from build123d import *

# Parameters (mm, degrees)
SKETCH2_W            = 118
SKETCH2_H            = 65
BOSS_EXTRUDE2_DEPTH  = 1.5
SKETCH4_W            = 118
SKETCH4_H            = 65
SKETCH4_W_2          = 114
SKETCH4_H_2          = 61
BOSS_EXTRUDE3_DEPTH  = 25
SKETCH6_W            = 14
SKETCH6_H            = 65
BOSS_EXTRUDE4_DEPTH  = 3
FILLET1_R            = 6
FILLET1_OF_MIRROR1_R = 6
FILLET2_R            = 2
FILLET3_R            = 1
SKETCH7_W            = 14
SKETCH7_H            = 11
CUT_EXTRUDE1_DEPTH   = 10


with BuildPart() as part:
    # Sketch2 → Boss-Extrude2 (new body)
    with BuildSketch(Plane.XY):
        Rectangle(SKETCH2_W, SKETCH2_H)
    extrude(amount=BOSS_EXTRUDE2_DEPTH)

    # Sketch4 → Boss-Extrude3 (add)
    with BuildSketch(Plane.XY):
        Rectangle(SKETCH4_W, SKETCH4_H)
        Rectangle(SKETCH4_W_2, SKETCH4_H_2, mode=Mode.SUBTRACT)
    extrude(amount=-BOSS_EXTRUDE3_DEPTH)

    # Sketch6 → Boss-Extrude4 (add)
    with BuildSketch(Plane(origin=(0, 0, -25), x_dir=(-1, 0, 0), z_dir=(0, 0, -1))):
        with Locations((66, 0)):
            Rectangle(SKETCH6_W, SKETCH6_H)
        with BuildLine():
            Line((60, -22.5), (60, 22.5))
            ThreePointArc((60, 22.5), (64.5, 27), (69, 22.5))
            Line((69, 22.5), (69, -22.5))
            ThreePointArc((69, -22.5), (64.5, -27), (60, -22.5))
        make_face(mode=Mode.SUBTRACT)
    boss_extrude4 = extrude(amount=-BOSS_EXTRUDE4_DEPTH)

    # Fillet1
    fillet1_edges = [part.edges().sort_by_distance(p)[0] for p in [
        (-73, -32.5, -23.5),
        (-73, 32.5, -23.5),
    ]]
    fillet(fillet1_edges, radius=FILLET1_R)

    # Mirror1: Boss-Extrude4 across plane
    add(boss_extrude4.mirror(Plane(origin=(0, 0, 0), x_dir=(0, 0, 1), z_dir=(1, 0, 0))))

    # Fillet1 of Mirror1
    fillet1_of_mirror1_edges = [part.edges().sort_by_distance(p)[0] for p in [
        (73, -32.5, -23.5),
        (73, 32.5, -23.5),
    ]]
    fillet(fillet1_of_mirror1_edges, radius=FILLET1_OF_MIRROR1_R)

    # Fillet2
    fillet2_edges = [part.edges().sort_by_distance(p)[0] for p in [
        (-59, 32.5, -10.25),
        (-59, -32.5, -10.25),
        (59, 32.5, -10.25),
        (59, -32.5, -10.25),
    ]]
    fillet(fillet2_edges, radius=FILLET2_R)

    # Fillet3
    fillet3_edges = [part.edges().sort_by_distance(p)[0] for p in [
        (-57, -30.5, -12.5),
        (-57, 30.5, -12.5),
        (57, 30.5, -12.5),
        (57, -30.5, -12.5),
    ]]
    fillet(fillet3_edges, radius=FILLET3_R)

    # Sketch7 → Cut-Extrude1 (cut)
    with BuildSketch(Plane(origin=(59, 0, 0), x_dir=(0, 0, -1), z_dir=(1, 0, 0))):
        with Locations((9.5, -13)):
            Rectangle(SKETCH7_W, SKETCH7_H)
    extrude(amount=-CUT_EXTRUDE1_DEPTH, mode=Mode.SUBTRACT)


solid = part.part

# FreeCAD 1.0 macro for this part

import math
import FreeCAD as App
import Part
import Sketcher
from FreeCAD import Vector


def edges_at(feature, points):
    """Names of the edges that pass closest to the given points."""
    edges = feature.Shape.Edges
    near = lambda p: min(range(len(edges)), key=lambda i: edges[i].distToShape(Part.Vertex(*p))[0])
    return sorted({f"Edge{near(p) + 1}" for p in points})

doc = App.newDocument("Part")
body = doc.addObject("PartDesign::Body", "Body")

# Sketch on XY plane
sketch1 = doc.addObject("Sketcher::SketchObject", "Sketch")
body.addObject(sketch1)
sketch1.AttachmentSupport = (doc.XY_Plane, [""])
sketch1.MapMode = "FlatFace"
sketch1.addGeometry([
    Part.LineSegment(Vector(-59, 32, 0), Vector(-59, -32, 0)),
    Part.LineSegment(Vector(-59, -32, 0), Vector(59, -32, 0)),
    Part.LineSegment(Vector(59, -32, 0), Vector(59, 32, 0)),
    Part.LineSegment(Vector(59, 32, 0), Vector(-59, 32, 0)),
], False)
sketch1.addConstraint([
    Sketcher.Constraint("Coincident", 0, 2, 1, 1),
    Sketcher.Constraint("Coincident", 1, 2, 2, 1),
    Sketcher.Constraint("Coincident", 2, 2, 3, 1),
    Sketcher.Constraint("Coincident", 3, 2, 0, 1),
    Sketcher.Constraint("Vertical", 0),
    Sketcher.Constraint("Horizontal", 1),
    Sketcher.Constraint("Vertical", 2),
    Sketcher.Constraint("Horizontal", 3),
    Sketcher.Constraint("Symmetric", 0, 2, 2, 2, -1, 1),
    Sketcher.Constraint("DistanceX", 1, 1, 1, 2, 118.0),
    Sketcher.Constraint("DistanceY", 0, 2, 0, 1, 65.0),
])
pad1 = doc.addObject("PartDesign::Pad", "Pad")
body.addObject(pad1)
pad1.Profile = sketch1
pad1.Length = 1.5

# Sketch on XY plane
sketch2 = doc.addObject("Sketcher::SketchObject", "Sketch001")
body.addObject(sketch2)
sketch2.AttachmentSupport = (doc.XY_Plane, [""])
sketch2.MapMode = "FlatFace"
sketch2.addGeometry([
    Part.LineSegment(Vector(-59, 32, 0), Vector(-59, -32, 0)),  # 0
    Part.LineSegment(Vector(-59, -32, 0), Vector(59, -32, 0)),  # 1
    Part.LineSegment(Vector(59, -32, 0), Vector(59, 32, 0)),  # 2
    Part.LineSegment(Vector(59, 32, 0), Vector(-59, 32, 0)),  # 3
    Part.LineSegment(Vector(57, -30, 0), Vector(-57, -30, 0)),  # 4
    Part.LineSegment(Vector(-57, -30, 0), Vector(-57, 30, 0)),  # 5
    Part.LineSegment(Vector(-57, 30, 0), Vector(57, 30, 0)),  # 6
    Part.LineSegment(Vector(57, 30, 0), Vector(57, -30, 0)),  # 7
], False)
sketch2.addConstraint([
    Sketcher.Constraint("Coincident", 0, 2, 1, 1),
    Sketcher.Constraint("Coincident", 1, 2, 2, 1),
    Sketcher.Constraint("Coincident", 2, 2, 3, 1),
    Sketcher.Constraint("Coincident", 3, 2, 0, 1),
    Sketcher.Constraint("Coincident", 4, 2, 5, 1),
    Sketcher.Constraint("Coincident", 5, 2, 6, 1),
    Sketcher.Constraint("Coincident", 6, 2, 7, 1),
    Sketcher.Constraint("Coincident", 7, 2, 4, 1),
    Sketcher.Constraint("Vertical", 0),
    Sketcher.Constraint("Horizontal", 1),
    Sketcher.Constraint("Vertical", 2),
    Sketcher.Constraint("Horizontal", 3),
    Sketcher.Constraint("Horizontal", 4),
    Sketcher.Constraint("Vertical", 5),
    Sketcher.Constraint("Horizontal", 6),
    Sketcher.Constraint("Vertical", 7),
    Sketcher.Constraint("Symmetric", 0, 2, 2, 2, -1, 1),
    Sketcher.Constraint("Symmetric", 4, 2, 6, 2, -1, 1),
    Sketcher.Constraint("DistanceX", 1, 1, 1, 2, 118.0),
    Sketcher.Constraint("DistanceX", 4, 2, 4, 1, 114.0),
    Sketcher.Constraint("DistanceY", 0, 2, 0, 1, 65.0),
    Sketcher.Constraint("DistanceY", 5, 1, 5, 2, 61.0),
])
pad2 = doc.addObject("PartDesign::Pad", "Pad001")
body.addObject(pad2)
pad2.Profile = sketch2
pad2.Length = 25
pad2.Reversed = True

# Sketch on XY plane
sketch3 = doc.addObject("Sketcher::SketchObject", "Sketch002")
body.addObject(sketch3)
sketch3.AttachmentSupport = (doc.XY_Plane, [""])
sketch3.MapMode = "FlatFace"
sketch3.AttachmentOffset = App.Placement(Vector(0, 0, -25), App.Rotation())
sketch3.addGeometry([
    Part.LineSegment(Vector(-59, 32.5, 0), Vector(-59, -32.5, 0)),  # 0
    Part.LineSegment(Vector(-59, -32.5, 0), Vector(-73, -32.5, 0)),  # 1
    Part.LineSegment(Vector(-73, -32.5, 0), Vector(-73, 32.5, 0)),  # 2
    Part.LineSegment(Vector(-73, 32.5, 0), Vector(-59, 32.5, 0)),  # 3
    Part.ArcOfCircle(Part.Circle(Vector(-64.5, -22.5, 0), Vector(0, 0, 1), 4.5), math.radians(180), math.radians(360)),  # 4
    Part.LineSegment(Vector(-60, -22.5, 0), Vector(-60, 22.5, 0)),  # 5
    Part.ArcOfCircle(Part.Circle(Vector(-64.5, 22.5, 0), Vector(0, 0, 1), 4.5), math.radians(0), math.radians(180)),  # 6
    Part.LineSegment(Vector(-69, 22.5, 0), Vector(-69, -22.5, 0)),  # 7
], False)
sketch3.addConstraint([
    Sketcher.Constraint("Coincident", 0, 2, 1, 1),
    Sketcher.Constraint("Coincident", 1, 2, 2, 1),
    Sketcher.Constraint("Coincident", 2, 2, 3, 1),
    Sketcher.Constraint("Coincident", 3, 2, 0, 1),
    Sketcher.Constraint("Tangent", 4, 2, 5, 1),
    Sketcher.Constraint("Tangent", 5, 2, 6, 1),
    Sketcher.Constraint("Tangent", 6, 2, 7, 1),
    Sketcher.Constraint("Tangent", 7, 2, 4, 1),
    Sketcher.Constraint("Vertical", 0),
    Sketcher.Constraint("Horizontal", 1),
    Sketcher.Constraint("Vertical", 2),
    Sketcher.Constraint("Horizontal", 3),
    Sketcher.Constraint("Vertical", 5),
    Sketcher.Constraint("Vertical", 7),
    Sketcher.Constraint("Radius", 4, 4.5),
    Sketcher.Constraint("DistanceX", 1, 2, 1, 1, 14.0),
    Sketcher.Constraint("DistanceY", 0, 2, 0, 1, 65.0),
    Sketcher.Constraint("DistanceY", 5, 1, 5, 2, 45.0),
    Sketcher.Constraint("DistanceX", 0, 2, -1, 1, 59.0),
    Sketcher.Constraint("DistanceX", 4, 2, -1, 1, 60.0),
    Sketcher.Constraint("DistanceY", 0, 2, 4, 3, 10.0),
    Sketcher.Constraint("DistanceY", 4, 3, -1, 1, 22.5),
])
pad3 = doc.addObject("PartDesign::Pad", "Pad002")
body.addObject(pad3)
pad3.Profile = sketch3
pad3.Length = 3
doc.recompute()

fillet = doc.addObject("PartDesign::Fillet", "Fillet")
body.addObject(fillet)
fillet.Base = (pad3, edges_at(pad3, [(-73, -32.5, -23.5), (-73, 32.5, -23.5)]))
fillet.Radius = 6
doc.recompute()

mirrored = doc.addObject("PartDesign::Mirrored", "Mirrored")
body.addObject(mirrored)
mirrored.Originals = [pad3]
mirrored.MirrorPlane = (doc.YZ_Plane, [""])
body.Tip = mirrored
doc.recompute()

fillet2 = doc.addObject("PartDesign::Fillet", "Fillet001")
body.addObject(fillet2)
fillet2.Base = (mirrored, edges_at(mirrored, [(73, -32.5, -23.5), (73, 32.5, -23.5)]))
fillet2.Radius = 6
doc.recompute()

fillet3 = doc.addObject("PartDesign::Fillet", "Fillet002")
body.addObject(fillet3)
fillet3.Base = (fillet2, edges_at(fillet2, [
    (-59, 32.5, -10.25),
    (-59, -32.5, -10.25),
    (59, 32.5, -10.25),
    (59, -32.5, -10.25),
]))
fillet3.Radius = 2
doc.recompute()

fillet4 = doc.addObject("PartDesign::Fillet", "Fillet003")
body.addObject(fillet4)
fillet4.Base = (fillet3, edges_at(fillet3, [
    (-57, -30.5, -12.5),
    (-57, 30.5, -12.5),
    (57, 30.5, -12.5),
    (57, -30.5, -12.5),
]))
fillet4.Radius = 1

# Sketch on YZ plane
sketch4 = doc.addObject("Sketcher::SketchObject", "Sketch003")
body.addObject(sketch4)
sketch4.AttachmentSupport = (doc.YZ_Plane, [""])
sketch4.MapMode = "FlatFace"
sketch4.AttachmentOffset = App.Placement(Vector(0, 0, 59), App.Rotation())
sketch4.addGeometry([
    Part.LineSegment(Vector(-8, -2, 0), Vector(-18, -2, 0)),
    Part.LineSegment(Vector(-18, -2, 0), Vector(-18, -16, 0)),
    Part.LineSegment(Vector(-18, -16, 0), Vector(-8, -16, 0)),
    Part.LineSegment(Vector(-8, -16, 0), Vector(-8, -2, 0)),
], False)
sketch4.addConstraint([
    Sketcher.Constraint("Coincident", 0, 2, 1, 1),
    Sketcher.Constraint("Coincident", 1, 2, 2, 1),
    Sketcher.Constraint("Coincident", 2, 2, 3, 1),
    Sketcher.Constraint("Coincident", 3, 2, 0, 1),
    Sketcher.Constraint("Horizontal", 0),
    Sketcher.Constraint("Vertical", 1),
    Sketcher.Constraint("Horizontal", 2),
    Sketcher.Constraint("Vertical", 3),
    Sketcher.Constraint("DistanceX", 0, 2, 0, 1, 11.0),
    Sketcher.Constraint("DistanceY", 1, 2, 1, 1, 14.0),
    Sketcher.Constraint("DistanceX", 0, 2, -1, 1, 18.5),
    Sketcher.Constraint("DistanceY", 0, 2, -1, 1, 2.5),
])
pocket1 = doc.addObject("PartDesign::Pocket", "Pocket")
body.addObject(pocket1)
pocket1.Profile = sketch4
pocket1.Length = 10

doc.recompute()
